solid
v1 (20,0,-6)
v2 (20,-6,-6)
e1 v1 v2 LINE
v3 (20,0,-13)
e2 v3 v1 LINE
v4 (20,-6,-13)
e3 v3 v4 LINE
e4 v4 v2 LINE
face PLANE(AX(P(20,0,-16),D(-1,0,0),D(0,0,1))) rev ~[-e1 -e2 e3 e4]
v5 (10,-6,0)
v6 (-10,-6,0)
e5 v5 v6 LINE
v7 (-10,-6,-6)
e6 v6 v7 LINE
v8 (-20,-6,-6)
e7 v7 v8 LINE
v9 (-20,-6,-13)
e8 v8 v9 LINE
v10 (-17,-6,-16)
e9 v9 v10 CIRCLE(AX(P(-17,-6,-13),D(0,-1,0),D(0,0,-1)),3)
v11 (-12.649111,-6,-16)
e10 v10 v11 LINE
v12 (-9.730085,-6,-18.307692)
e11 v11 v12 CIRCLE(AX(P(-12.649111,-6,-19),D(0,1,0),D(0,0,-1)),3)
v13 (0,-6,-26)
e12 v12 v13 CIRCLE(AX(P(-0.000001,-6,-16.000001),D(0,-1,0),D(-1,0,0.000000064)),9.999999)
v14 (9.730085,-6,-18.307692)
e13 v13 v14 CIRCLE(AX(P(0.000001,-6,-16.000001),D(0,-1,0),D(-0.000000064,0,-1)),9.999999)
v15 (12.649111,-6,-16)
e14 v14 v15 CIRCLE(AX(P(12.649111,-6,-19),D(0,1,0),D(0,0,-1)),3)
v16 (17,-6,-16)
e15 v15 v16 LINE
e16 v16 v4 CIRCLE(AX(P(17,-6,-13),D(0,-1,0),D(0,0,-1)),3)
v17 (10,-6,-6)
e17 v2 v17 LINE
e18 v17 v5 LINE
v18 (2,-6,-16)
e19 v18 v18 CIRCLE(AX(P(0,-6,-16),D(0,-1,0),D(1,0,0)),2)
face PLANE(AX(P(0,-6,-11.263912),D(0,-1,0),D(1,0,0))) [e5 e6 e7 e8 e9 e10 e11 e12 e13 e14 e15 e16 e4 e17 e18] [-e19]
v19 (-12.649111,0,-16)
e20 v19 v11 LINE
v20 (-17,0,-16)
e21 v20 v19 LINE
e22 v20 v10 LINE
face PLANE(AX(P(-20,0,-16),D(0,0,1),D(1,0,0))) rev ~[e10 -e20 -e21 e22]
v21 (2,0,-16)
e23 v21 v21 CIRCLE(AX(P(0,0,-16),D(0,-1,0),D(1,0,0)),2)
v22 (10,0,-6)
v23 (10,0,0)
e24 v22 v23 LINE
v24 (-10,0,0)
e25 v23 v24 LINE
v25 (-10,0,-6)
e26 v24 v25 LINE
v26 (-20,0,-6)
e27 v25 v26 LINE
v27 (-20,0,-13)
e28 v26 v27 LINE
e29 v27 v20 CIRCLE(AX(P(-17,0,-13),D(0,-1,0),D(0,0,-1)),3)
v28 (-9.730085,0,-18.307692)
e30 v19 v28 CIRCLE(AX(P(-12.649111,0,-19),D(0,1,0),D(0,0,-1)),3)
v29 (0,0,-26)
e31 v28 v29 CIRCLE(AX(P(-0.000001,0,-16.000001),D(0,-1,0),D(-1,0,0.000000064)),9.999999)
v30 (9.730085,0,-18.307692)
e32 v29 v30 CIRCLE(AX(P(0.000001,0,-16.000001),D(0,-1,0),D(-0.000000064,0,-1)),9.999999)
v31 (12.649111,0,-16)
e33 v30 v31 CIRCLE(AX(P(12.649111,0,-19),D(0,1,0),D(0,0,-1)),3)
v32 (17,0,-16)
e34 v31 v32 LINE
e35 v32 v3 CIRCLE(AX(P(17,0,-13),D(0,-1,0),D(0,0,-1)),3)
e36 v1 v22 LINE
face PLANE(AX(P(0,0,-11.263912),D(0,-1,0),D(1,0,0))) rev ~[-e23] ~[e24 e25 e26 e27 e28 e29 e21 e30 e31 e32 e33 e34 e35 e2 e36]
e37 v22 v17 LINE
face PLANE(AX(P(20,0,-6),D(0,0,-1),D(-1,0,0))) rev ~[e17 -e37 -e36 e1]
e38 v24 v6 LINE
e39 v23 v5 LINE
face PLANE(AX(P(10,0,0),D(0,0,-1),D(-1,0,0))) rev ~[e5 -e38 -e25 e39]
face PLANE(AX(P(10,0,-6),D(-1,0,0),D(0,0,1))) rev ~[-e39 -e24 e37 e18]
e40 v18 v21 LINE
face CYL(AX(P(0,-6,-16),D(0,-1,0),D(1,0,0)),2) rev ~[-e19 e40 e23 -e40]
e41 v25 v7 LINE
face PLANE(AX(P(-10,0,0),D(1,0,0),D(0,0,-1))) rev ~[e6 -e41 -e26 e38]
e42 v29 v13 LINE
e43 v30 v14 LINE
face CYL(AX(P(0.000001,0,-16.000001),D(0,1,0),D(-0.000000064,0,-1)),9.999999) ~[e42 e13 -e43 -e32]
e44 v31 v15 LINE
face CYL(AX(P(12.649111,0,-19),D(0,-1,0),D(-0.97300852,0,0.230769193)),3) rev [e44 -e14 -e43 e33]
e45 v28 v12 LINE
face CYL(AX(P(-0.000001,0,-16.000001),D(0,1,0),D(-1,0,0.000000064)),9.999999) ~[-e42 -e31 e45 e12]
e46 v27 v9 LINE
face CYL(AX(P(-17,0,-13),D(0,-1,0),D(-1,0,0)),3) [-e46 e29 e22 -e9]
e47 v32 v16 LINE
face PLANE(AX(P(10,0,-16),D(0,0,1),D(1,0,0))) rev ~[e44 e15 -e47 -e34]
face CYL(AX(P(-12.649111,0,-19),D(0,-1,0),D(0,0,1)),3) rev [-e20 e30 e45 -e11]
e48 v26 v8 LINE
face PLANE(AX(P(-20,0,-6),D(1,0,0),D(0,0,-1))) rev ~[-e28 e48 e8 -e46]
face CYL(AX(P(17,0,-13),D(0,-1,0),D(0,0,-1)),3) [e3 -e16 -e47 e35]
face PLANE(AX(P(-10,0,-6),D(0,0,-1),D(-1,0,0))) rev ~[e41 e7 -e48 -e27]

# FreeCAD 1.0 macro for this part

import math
import FreeCAD as App
import Part
import Sketcher


def edges_at(feature, points):
    """Names of the edges that pass closest to the given points."""
    edges = feature.Shape.Edges
    near = lambda p: min(range(len(edges)), key=lambda i: edges[i].distToShape(Part.Vertex(*p))[0])
    return sorted({f"Edge{near(p) + 1}" for p in points})

doc = App.newDocument("Part")
body = doc.addObject("PartDesign::Body", "Body")

# Sketch on XZ plane
sketch1 = body.newObject("Sketcher::SketchObject", "Sketch")
sketch1.AttachmentSupport = (doc.getObject("XZ_Plane"), [""])
sketch1.MapMode = "FlatFace"
sketch1.addGeometry(Part.LineSegment(App.Vector(10, 0, 0), App.Vector(-10, 0, 0)), False)
sketch1.addGeometry(Part.LineSegment(App.Vector(-10, 0, 0), App.Vector(-10, -6, 0)), False)
sketch1.addGeometry(Part.LineSegment(App.Vector(-10, -6, 0), App.Vector(-20, -6, 0)), False)
sketch1.addGeometry(Part.LineSegment(App.Vector(-20, -6, 0), App.Vector(-20, -16, 0)), False)
sketch1.addGeometry(Part.LineSegment(App.Vector(-20, -16, 0), App.Vector(-10, -16, 0)), False)
sketch1.addGeometry(Part.ArcOfCircle(Part.Circle(App.Vector(0, -16, 0), App.Vector(0, 0, 1), 10), math.radians(180), math.radians(270)), False)
sketch1.addGeometry(Part.ArcOfCircle(Part.Circle(App.Vector(0, -16, 0), App.Vector(0, 0, 1), 10), math.radians(-90), math.radians(0)), False)
sketch1.addGeometry(Part.LineSegment(App.Vector(10, -16, 0), App.Vector(20, -16, 0)), False)
sketch1.addGeometry(Part.LineSegment(App.Vector(20, -16, 0), App.Vector(20, -6, 0)), False)
sketch1.addGeometry(Part.LineSegment(App.Vector(20, -6, 0), App.Vector(10, -6, 0)), False)
sketch1.addGeometry(Part.LineSegment(App.Vector(10, -6, 0), App.Vector(10, 0, 0)), False)
sketch1.addConstraint(Sketcher.Constraint("Coincident", 0, 2, 1, 1))
sketch1.addConstraint(Sketcher.Constraint("Coincident", 1, 2, 2, 1))
sketch1.addConstraint(Sketcher.Constraint("Coincident", 2, 2, 3, 1))
sketch1.addConstraint(Sketcher.Constraint("Coincident", 3, 2, 4, 1))
sketch1.addConstraint(Sketcher.Constraint("Coincident", 4, 2, 5, 1))
sketch1.addConstraint(Sketcher.Constraint("Tangent", 5, 2, 6, 1))
sketch1.addConstraint(Sketcher.Constraint("Coincident", 6, 2, 7, 1))
sketch1.addConstraint(Sketcher.Constraint("Coincident", 7, 2, 8, 1))
sketch1.addConstraint(Sketcher.Constraint("Coincident", 8, 2, 9, 1))
sketch1.addConstraint(Sketcher.Constraint("Coincident", 9, 2, 10, 1))
sketch1.addConstraint(Sketcher.Constraint("Coincident", 10, 2, 0, 1))
sketch1.addConstraint(Sketcher.Constraint("Horizontal", 0))
sketch1.addConstraint(Sketcher.Constraint("Vertical", 1))
sketch1.addConstraint(Sketcher.Constraint("Horizontal", 2))
sketch1.addConstraint(Sketcher.Constraint("Vertical", 3))
sketch1.addConstraint(Sketcher.Constraint("Horizontal", 4))
sketch1.addConstraint(Sketcher.Constraint("Horizontal", 7))
sketch1.addConstraint(Sketcher.Constraint("Vertical", 8))
sketch1.addConstraint(Sketcher.Constraint("Horizontal", 9))
sketch1.addConstraint(Sketcher.Constraint("Vertical", 10))
sketch1.addConstraint(Sketcher.Constraint("Equal", 5, 6))
sketch1.addConstraint(Sketcher.Constraint("Symmetric", 0, 2, 10, 2, -1, 1))
sketch1.addConstraint(Sketcher.Constraint("Symmetric", 4, 2, 6, 2, -2))
sketch1.addConstraint(Sketcher.Constraint("Symmetric", 2, 2, 8, 2, -2))
sketch1.addConstraint(Sketcher.Constraint("PointOnObject", 5, 2, -2))
sketch1.addConstraint(Sketcher.Constraint("Horizontal", 6, 3, 3, 2))
sketch1.addConstraint(Sketcher.Constraint("Vertical", 1, 2, 4, 2))
sketch1.addConstraint(Sketcher.Constraint("Equal", 9, 3))
sketch1.addConstraint(Sketcher.Constraint("Radius", 5, 9.999999))
sketch1.addConstraint(Sketcher.Constraint("DistanceX", 2, 2, 2, 1, 10.0))
sketch1.addConstraint(Sketcher.Constraint("DistanceY", 1, 2, 1, 1, 6.0))
pad1 = body.newObject("PartDesign::Pad", "Pad")
pad1.Profile = sketch1
pad1.Length = 6
doc.recompute()

fillet = body.newObject("PartDesign::Fillet", "Fillet")
fillet.Base = (pad1, edges_at(pad1, [
    (10, -3, -16),
    (-10, -3, -16),
    (20, -3, -16),
    (-20, -3, -16),
]))
fillet.Radius = 3

# Sketch on XZ plane
sketch2 = body.newObject("Sketcher::SketchObject", "Sketch001")
sketch2.AttachmentSupport = (doc.getObject("XZ_Plane"), [""])
sketch2.MapMode = "FlatFace"
sketch2.AttachmentOffset = App.Placement(App.Vector(0, 0, 6), App.Rotation())
sketch2.addGeometry(Part.Circle(App.Vector(0, -16, 0), App.Vector(0, 0, 1), 2), False)
sketch2.addConstraint(Sketcher.Constraint("PointOnObject", 0, 3, -2))
sketch2.addConstraint(Sketcher.Constraint("Diameter", 0, 4.0))
sketch2.addConstraint(Sketcher.Constraint("DistanceY", 0, 3, -1, 1, 16.0))
pocket1 = body.newObject("PartDesign::Pocket", "Pocket")
pocket1.Profile = sketch2
pocket1.Type = "ThroughAll"

doc.recompute()
